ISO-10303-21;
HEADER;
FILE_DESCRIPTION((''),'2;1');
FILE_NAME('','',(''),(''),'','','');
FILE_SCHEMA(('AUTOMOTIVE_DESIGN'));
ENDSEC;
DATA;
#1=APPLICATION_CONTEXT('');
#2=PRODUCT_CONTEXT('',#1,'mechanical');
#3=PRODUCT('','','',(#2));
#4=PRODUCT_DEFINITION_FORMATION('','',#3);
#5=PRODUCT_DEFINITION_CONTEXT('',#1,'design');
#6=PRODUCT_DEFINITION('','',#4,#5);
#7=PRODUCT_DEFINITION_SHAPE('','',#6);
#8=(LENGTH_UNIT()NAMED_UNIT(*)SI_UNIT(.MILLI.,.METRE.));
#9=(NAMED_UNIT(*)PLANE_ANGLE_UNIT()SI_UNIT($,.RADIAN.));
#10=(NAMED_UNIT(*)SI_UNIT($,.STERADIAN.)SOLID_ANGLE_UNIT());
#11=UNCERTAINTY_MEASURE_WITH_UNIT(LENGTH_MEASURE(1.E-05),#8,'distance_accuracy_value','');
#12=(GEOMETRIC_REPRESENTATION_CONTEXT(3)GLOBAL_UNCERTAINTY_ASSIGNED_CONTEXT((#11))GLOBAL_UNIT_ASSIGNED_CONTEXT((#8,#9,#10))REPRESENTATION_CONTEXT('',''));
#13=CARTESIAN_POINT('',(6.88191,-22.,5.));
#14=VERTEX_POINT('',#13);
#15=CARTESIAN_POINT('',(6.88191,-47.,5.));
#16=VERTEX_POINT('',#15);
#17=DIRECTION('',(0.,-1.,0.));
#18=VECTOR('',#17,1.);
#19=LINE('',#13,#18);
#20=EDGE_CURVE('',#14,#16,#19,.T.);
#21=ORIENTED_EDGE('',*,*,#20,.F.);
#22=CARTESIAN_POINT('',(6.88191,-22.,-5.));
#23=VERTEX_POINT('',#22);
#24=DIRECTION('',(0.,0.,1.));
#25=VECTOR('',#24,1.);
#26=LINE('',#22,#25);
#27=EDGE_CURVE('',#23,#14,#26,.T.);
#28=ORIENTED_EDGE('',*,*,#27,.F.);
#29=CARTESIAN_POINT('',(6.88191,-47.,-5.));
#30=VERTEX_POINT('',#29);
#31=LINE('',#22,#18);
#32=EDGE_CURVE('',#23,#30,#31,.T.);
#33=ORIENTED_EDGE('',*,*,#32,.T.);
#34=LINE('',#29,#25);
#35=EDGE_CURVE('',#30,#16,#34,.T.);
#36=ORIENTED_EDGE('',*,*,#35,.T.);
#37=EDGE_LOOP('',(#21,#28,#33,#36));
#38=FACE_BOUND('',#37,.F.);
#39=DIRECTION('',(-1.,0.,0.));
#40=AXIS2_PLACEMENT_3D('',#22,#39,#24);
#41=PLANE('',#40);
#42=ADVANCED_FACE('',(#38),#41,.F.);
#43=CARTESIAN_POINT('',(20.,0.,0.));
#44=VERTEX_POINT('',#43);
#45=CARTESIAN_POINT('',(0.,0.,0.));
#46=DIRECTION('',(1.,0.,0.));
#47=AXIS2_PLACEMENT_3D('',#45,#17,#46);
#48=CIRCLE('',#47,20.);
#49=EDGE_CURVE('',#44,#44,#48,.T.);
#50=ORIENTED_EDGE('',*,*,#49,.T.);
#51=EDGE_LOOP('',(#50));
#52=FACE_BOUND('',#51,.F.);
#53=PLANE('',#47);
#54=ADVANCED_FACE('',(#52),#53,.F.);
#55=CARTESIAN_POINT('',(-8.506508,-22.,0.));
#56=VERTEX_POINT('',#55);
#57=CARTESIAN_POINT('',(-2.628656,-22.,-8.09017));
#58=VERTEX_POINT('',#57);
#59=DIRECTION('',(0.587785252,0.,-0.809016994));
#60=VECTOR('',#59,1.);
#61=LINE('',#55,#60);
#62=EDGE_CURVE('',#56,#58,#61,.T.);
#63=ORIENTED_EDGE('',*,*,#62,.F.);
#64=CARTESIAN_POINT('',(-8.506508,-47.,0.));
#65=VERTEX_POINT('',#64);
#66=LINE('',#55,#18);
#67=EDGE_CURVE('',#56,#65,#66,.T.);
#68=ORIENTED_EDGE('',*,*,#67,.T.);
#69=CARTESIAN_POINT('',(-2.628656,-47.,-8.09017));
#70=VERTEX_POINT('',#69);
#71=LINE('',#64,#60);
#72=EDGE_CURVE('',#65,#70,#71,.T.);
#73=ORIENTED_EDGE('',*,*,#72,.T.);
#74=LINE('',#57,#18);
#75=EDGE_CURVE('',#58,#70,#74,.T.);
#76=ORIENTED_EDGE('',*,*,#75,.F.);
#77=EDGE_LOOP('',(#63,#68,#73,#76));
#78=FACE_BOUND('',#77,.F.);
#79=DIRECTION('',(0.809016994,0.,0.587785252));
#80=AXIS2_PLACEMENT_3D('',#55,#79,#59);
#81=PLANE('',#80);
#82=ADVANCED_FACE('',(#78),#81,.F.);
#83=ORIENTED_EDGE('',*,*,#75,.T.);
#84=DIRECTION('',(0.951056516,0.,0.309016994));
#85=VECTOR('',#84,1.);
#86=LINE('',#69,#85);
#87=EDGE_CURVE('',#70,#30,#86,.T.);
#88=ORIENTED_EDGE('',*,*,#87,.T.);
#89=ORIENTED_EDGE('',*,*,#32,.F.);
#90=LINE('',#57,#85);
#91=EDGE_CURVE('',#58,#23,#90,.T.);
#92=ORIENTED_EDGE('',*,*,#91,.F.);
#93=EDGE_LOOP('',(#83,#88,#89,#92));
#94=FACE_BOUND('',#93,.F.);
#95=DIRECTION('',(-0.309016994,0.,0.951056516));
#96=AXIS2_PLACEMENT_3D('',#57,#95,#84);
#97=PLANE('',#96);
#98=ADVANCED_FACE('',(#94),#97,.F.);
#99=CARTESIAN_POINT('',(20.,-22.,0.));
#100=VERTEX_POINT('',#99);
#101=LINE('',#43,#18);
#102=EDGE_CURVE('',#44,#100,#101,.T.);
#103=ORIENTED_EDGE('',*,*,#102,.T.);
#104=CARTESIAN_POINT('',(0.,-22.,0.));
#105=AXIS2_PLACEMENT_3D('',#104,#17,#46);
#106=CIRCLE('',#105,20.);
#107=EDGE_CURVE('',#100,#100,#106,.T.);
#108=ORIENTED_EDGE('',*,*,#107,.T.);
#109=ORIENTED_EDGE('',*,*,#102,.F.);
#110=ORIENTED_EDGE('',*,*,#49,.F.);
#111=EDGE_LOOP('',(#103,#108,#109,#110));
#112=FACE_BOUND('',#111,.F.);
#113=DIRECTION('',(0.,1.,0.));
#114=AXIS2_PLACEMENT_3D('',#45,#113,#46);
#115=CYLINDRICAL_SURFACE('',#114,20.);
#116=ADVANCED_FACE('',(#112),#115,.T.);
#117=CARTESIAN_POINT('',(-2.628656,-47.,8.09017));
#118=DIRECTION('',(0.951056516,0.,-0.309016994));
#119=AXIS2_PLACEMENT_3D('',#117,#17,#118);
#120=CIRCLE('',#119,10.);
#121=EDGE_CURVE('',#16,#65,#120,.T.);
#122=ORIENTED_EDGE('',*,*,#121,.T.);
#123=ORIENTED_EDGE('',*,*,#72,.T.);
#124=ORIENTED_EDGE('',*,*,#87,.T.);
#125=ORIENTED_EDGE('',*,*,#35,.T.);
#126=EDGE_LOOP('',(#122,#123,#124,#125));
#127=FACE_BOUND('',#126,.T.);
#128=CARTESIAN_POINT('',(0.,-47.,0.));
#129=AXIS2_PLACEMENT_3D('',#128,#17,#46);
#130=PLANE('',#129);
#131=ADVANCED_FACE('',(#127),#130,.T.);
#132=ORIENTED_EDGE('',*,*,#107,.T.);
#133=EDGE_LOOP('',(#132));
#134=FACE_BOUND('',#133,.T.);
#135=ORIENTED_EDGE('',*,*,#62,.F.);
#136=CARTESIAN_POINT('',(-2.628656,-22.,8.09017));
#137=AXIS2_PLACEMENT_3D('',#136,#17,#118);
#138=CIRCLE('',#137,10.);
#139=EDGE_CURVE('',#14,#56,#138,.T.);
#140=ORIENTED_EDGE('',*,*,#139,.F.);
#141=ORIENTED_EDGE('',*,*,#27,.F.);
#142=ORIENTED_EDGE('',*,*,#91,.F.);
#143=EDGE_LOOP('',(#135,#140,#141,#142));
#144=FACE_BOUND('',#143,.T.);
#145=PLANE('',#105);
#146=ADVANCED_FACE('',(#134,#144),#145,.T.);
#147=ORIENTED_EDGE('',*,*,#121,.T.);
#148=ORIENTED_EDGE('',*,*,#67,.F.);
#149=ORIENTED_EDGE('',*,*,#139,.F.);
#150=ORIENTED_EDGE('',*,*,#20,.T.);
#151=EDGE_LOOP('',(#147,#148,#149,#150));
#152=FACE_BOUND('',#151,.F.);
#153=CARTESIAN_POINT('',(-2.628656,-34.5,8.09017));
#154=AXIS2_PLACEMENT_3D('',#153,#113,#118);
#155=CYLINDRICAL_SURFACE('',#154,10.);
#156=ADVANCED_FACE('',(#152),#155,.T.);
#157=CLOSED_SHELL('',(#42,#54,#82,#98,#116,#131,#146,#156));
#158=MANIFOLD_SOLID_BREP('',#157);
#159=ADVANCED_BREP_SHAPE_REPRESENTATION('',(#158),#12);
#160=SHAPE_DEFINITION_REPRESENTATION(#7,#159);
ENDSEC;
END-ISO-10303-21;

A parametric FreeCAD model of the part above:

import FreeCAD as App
import Part
import Sketcher
Q = App.Units.Quantity

doc = App.newDocument("Part")
body = doc.addObject("PartDesign::Body", "Body")

# Sketch on XZ plane
sketch1 = doc.addObject("Sketcher::SketchObject", "Sketch")
body.addObject(sketch1)
sketch1.AttachmentSupport = (doc.XZ_Plane, [""])
sketch1.MapMode = "FlatFace"
sketch1.addGeometry(Part.Circle(App.Vector(0, 0, 0), App.Vector(0, 0, 1), 20), False)
sketch1.addConstraint([
    Sketcher.Constraint("Coincident", 0, 3, -1, 1),
    Sketcher.Constraint("Diameter", 0, 40.0),
])
pad1 = doc.addObject("PartDesign::Pad", "Pad")
body.addObject(pad1)
pad1.Profile = sketch1
pad1.Length = 22

# Sketch on XZ plane
sketch2 = doc.addObject("Sketcher::SketchObject", "Sketch001")
body.addObject(sketch2)
sketch2.AttachmentSupport = (doc.XZ_Plane, [""])
sketch2.MapMode = "FlatFace"
sketch2.AttachmentOffset = App.Placement(App.Vector(0, 0, 22), App.Rotation())
sketch2.addGeometry([
    Part.LineSegment(App.Vector(6.88191, -5, 0), App.Vector(6.88191, 5, 0)),  # 0
    Part.LineSegment(App.Vector(6.88191, 5, 0), App.Vector(-2.628656, 8.09017, 0)),  # 1
    Part.LineSegment(App.Vector(-2.628656, 8.09017, 0), App.Vector(-8.506508, 0, 0)),  # 2
    Part.LineSegment(App.Vector(-8.506508, 0, 0), App.Vector(-2.628656, -8.09017, 0)),  # 3
    Part.LineSegment(App.Vector(-2.628656, -8.09017, 0), App.Vector(6.88191, -5, 0)),  # 4
], False)
sketch2.addConstraint([
    Sketcher.Constraint("Coincident", 0, 2, 1, 1),
    Sketcher.Constraint("Coincident", 1, 2, 2, 1),
    Sketcher.Constraint("Coincident", 2, 2, 3, 1),
    Sketcher.Constraint("Coincident", 3, 2, 4, 1),
    Sketcher.Constraint("Coincident", 4, 2, 0, 1),
    Sketcher.Constraint("Vertical", 0),
    Sketcher.Constraint("Symmetric", 1, 2, 3, 2, -1),
    Sketcher.Constraint("PointOnObject", 2, 2, -1),
    Sketcher.Constraint("Equal", 1, 2),
    Sketcher.Constraint("Equal", 3, 4),
    Sketcher.Constraint("DistanceY", 0, 1, 0, 2, 10.0),
    Sketcher.Constraint("Angle", 1, Q("162 deg")),
    Sketcher.Constraint("Angle", 2, Q("-126 deg")),
    Sketcher.Constraint("DistanceX", -1, 1, 0, 2, 6.88191),
])
pad2 = doc.addObject("PartDesign::Pad", "Pad001")
body.addObject(pad2)
pad2.Profile = sketch2
pad2.Length = 25

# Sketch on an angled plane
sketch3 = doc.addObject("Sketcher::SketchObject", "Sketch002")
body.addObject(sketch3)
sketch3.Placement = App.Placement(App.Vector(2.126627, 0, 6.545085), App.Rotation(App.Vector(0.951056516, 0, -0.309016994), App.Vector(0, 0.999999999, 0), App.Vector(0.309016994, 0, 0.951056516), "ZXY"))
sketch3.addGeometry([
    Part.LineSegment(App.Vector(-5, -22, 0), App.Vector(-5, -47, 0)),
    Part.LineSegment(App.Vector(-5, -47, 0), App.Vector(5, -47, 0)),
    Part.LineSegment(App.Vector(5, -47, 0), App.Vector(5, -22, 0)),
    Part.LineSegment(App.Vector(5, -22, 0), App.Vector(-5, -22, 0)),
], False)
sketch3.addGeometry(Part.LineSegment(App.Vector(-5, -22, 0), App.Vector(-5, -47, 0)), True)  # axis
sketch3.addConstraint([
    Sketcher.Constraint("Coincident", 0, 2, 1, 1),
    Sketcher.Constraint("Coincident", 1, 2, 2, 1),
    Sketcher.Constraint("Coincident", 2, 2, 3, 1),
    Sketcher.Constraint("Coincident", 3, 2, 0, 1),
    Sketcher.Constraint("Vertical", 0),
    Sketcher.Constraint("Horizontal", 1),
    Sketcher.Constraint("Vertical", 2),
    Sketcher.Constraint("Horizontal", 3),
    Sketcher.Constraint("Vertical", 4),
    Sketcher.Constraint("Coincident", 4, 1, 3, 2),
    Sketcher.Constraint("Symmetric", 1, 2, 4, 2, -2),
    Sketcher.Constraint("DistanceX", 1, 1, 1, 2, 10.0),
    Sketcher.Constraint("DistanceY", 0, 2, 0, 1, 25.0),
    Sketcher.Constraint("DistanceY", 0, 2, -1, 1, 47.0),
])
revolution = doc.addObject("PartDesign::Revolution", "Revolution")
body.addObject(revolution)
revolution.Profile = sketch3
revolution.ReferenceAxis = (sketch3, ["Axis0"])
revolution.Angle = 360

doc.recompute()
